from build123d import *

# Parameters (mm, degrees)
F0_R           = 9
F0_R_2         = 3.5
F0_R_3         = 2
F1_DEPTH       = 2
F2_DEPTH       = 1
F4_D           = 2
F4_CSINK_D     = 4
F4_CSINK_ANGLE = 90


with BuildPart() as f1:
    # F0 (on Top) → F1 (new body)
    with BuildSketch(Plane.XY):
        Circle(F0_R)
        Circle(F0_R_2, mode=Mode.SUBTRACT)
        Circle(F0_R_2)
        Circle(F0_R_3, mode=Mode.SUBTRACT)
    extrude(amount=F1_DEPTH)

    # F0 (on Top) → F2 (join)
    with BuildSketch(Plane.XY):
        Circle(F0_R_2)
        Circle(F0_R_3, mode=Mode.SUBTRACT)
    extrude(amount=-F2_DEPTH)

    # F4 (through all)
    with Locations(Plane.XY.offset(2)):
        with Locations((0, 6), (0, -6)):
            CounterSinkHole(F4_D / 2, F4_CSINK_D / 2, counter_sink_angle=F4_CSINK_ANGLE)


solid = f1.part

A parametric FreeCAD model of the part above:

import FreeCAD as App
import Part
import Sketcher
Q = App.Units.Quantity

doc = App.newDocument("Part")
body = doc.addObject("PartDesign::Body", "Body")

sketch1 = body.newObject("Sketcher::SketchObject", "Sketch")
sketch1.AttachmentSupport = (doc.getObject("XY_Plane"), [""])
sketch1.MapMode = "FlatFace"
sketch1.addGeometry([
    Part.Circle(App.Vector(0, 0, 0), App.Vector(0, 0, 1), 9),
    Part.Circle(App.Vector(0, 0, 0), App.Vector(0, 0, 1), 2),
], False)
sketch1.addConstraint([
    Sketcher.Constraint("Coincident", 0, 3, -1, 1),
    Sketcher.Constraint("Coincident", 1, 3, -1, 1),
    Sketcher.Constraint("Diameter", 0, Q("18 mm")),
    Sketcher.Constraint("Diameter", 1, Q("4 mm")),
])
pad1 = body.newObject("PartDesign::Pad", "Pad")
pad1.Profile = sketch1
pad1.Length = 2

sketch2 = body.newObject("Sketcher::SketchObject", "Sketch001")
sketch2.AttachmentSupport = (doc.getObject("XY_Plane"), [""])
sketch2.MapMode = "FlatFace"
sketch2.addGeometry([
    Part.Circle(App.Vector(0, 0, 0), App.Vector(0, 0, 1), 3.5),
    Part.Circle(App.Vector(0, 0, 0), App.Vector(0, 0, 1), 2),
], False)
sketch2.addConstraint([
    Sketcher.Constraint("Coincident", 0, 3, -1, 1),
    Sketcher.Constraint("Coincident", 1, 3, -1, 1),
    Sketcher.Constraint("Diameter", 0, Q("7 mm")),
    Sketcher.Constraint("Diameter", 1, Q("4 mm")),
])
pad2 = body.newObject("PartDesign::Pad", "Pad001")
pad2.Profile = sketch2
pad2.Length = 1
pad2.Reversed = True

sketch3 = body.newObject("Sketcher::SketchObject", "Sketch002")
sketch3.AttachmentSupport = (doc.getObject("XY_Plane"), [""])
sketch3.MapMode = "FlatFace"
sketch3.AttachmentOffset = App.Placement(App.Vector(0, 0, 2), App.Rotation())
sketch3.addGeometry([
    Part.Circle(App.Vector(0, 6, 0), App.Vector(0, 0, 1), 1),
    Part.Circle(App.Vector(0, -6, 0), App.Vector(0, 0, 1), 1),
], False)
sketch3.addConstraint([
    Sketcher.Constraint("Equal", 0, 1),
    Sketcher.Constraint("Symmetric", 0, 3, 1, 3, -1, 1),
    Sketcher.Constraint("PointOnObject", 0, 3, -2),
    Sketcher.Constraint("Diameter", 0, Q("2 mm")),
    Sketcher.Constraint("DistanceY", -1, 1, 0, 3, Q("6 mm")),
])
doc.recompute()
hole = body.newObject("PartDesign::Hole", "Hole")
hole.Profile = sketch3
hole.ThreadType = "None"
hole.Diameter = 2
hole.DepthType = "ThroughAll"
hole.HoleCutType = "Countersink"
hole.HoleCutDiameter = 4
hole.HoleCutCountersinkAngle = 90

doc.recompute()
